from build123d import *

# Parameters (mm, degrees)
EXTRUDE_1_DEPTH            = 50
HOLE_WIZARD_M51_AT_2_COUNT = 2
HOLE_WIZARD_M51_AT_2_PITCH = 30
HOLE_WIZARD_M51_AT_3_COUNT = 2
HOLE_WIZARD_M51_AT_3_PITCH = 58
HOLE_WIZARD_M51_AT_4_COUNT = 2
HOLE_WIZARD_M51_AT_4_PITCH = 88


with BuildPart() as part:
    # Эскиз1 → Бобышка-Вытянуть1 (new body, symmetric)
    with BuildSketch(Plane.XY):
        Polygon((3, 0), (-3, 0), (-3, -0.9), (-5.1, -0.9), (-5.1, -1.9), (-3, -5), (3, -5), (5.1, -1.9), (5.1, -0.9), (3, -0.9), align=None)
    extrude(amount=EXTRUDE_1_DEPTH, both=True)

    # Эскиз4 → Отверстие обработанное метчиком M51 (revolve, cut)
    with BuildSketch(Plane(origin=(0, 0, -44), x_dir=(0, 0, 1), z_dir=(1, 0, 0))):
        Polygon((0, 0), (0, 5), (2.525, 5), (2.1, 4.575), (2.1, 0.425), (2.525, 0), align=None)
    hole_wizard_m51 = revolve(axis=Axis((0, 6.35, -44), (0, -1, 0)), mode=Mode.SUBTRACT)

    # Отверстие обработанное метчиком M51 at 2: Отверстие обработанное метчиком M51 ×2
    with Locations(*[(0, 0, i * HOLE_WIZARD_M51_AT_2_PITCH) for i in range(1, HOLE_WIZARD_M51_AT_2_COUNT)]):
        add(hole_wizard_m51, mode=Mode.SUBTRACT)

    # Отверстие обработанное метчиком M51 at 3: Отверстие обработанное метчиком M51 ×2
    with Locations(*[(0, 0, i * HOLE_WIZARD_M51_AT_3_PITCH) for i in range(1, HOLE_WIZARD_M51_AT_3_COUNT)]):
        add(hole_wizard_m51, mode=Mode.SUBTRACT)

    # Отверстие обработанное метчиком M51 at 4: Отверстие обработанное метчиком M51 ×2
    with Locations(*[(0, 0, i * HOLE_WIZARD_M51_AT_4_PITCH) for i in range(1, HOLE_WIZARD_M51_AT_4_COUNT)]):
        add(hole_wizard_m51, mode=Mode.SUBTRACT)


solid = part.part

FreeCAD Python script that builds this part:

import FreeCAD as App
import Part
import Sketcher

V = App.Vector

doc = App.newDocument("Part")
body = doc.addObject("PartDesign::Body", "Body")

sketch1 = body.newObject("Sketcher::SketchObject", "Sketch")
sketch1.AttachmentSupport = (doc.getObject("XY_Plane"), [""])
sketch1.MapMode = "FlatFace"
sketch1.addGeometry([
    Part.LineSegment(V(3, 0, 0), V(-3, 0, 0)),
    Part.LineSegment(V(-3, 0, 0), V(-3, -0.9, 0)),
    Part.LineSegment(V(-3, -0.9, 0), V(-5.1, -0.9, 0)),
    Part.LineSegment(V(-5.1, -0.9, 0), V(-5.1, -1.9, 0)),
    Part.LineSegment(V(-5.1, -1.9, 0), V(-3, -5, 0)),
    Part.LineSegment(V(-3, -5, 0), V(3, -5, 0)),
    Part.LineSegment(V(3, -5, 0), V(5.1, -1.9, 0)),
    Part.LineSegment(V(5.1, -1.9, 0), V(5.1, -0.9, 0)),
    Part.LineSegment(V(5.1, -0.9, 0), V(3, -0.9, 0)),
    Part.LineSegment(V(3, -0.9, 0), V(3, 0, 0)),
], False)
sketch1.addConstraint([
    Sketcher.Constraint("Coincident", 0, 2, 1, 1),
    Sketcher.Constraint("Coincident", 1, 2, 2, 1),
    Sketcher.Constraint("Coincident", 2, 2, 3, 1),
    Sketcher.Constraint("Coincident", 3, 2, 4, 1),
    Sketcher.Constraint("Coincident", 4, 2, 5, 1),
    Sketcher.Constraint("Coincident", 5, 2, 6, 1),
    Sketcher.Constraint("Coincident", 6, 2, 7, 1),
    Sketcher.Constraint("Coincident", 7, 2, 8, 1),
    Sketcher.Constraint("Coincident", 8, 2, 9, 1),
    Sketcher.Constraint("Coincident", 9, 2, 0, 1),
    Sketcher.Constraint("Horizontal", 0),
    Sketcher.Constraint("Vertical", 1),
    Sketcher.Constraint("Horizontal", 2),
    Sketcher.Constraint("Vertical", 3),
    Sketcher.Constraint("Horizontal", 5),
    Sketcher.Constraint("Vertical", 7),
    Sketcher.Constraint("Horizontal", 8),
    Sketcher.Constraint("Vertical", 9),
    Sketcher.Constraint("Symmetric", 0, 2, 9, 2, -1, 1),
    Sketcher.Constraint("Symmetric", 3, 2, 6, 2, -2),
    Sketcher.Constraint("Horizontal", 2, 2, 7, 2),
    Sketcher.Constraint("Vertical", 1, 2, 4, 2),
    Sketcher.Constraint("Vertical", 5, 2, 8, 2),
    Sketcher.Constraint("DistanceX", 0, 2, 0, 1, 6.0),
    Sketcher.Constraint("DistanceY", 3, 2, 3, 1, 1.0),
    Sketcher.Constraint("DistanceX", 2, 2, 2, 1, 2.1),
    Sketcher.Constraint("DistanceY", 1, 2, 1, 1, 0.9),
    Sketcher.Constraint("DistanceY", 4, 2, -1, 1, 5.0),
])
pad1 = body.newObject("PartDesign::Pad", "Pad")
pad1.Profile = sketch1
pad1.Length = 100
pad1.Midplane = True

sketch2 = body.newObject("Sketcher::SketchObject", "Sketch001")
sketch2.AttachmentSupport = (doc.getObject("YZ_Plane"), [""])
sketch2.MapMode = "FlatFace"
sketch2.addGeometry([
    Part.LineSegment(V(-5, -44, 0), V(0, -44, 0)),
    Part.LineSegment(V(0, -44, 0), V(0, -41.5, 0)),
    Part.LineSegment(V(0, -41.5, 0), V(-0.4, -41.9, 0)),
    Part.LineSegment(V(-0.4, -41.9, 0), V(-4.6, -41.9, 0)),
    Part.LineSegment(V(-4.6, -41.9, 0), V(-5, -41.5, 0)),
    Part.LineSegment(V(-5, -41.5, 0), V(-5, -44, 0)),
], False)
sketch2.addGeometry(Part.LineSegment(V(0, -44, 0), V(-5, -44, 0)), True)
sketch2.addConstraint([
    Sketcher.Constraint("Coincident", 0, 2, 1, 1),
    Sketcher.Constraint("Coincident", 1, 2, 2, 1),
    Sketcher.Constraint("Coincident", 2, 2, 3, 1),
    Sketcher.Constraint("Coincident", 3, 2, 4, 1),
    Sketcher.Constraint("Coincident", 4, 2, 5, 1),
    Sketcher.Constraint("Coincident", 5, 2, 0, 1),
    Sketcher.Constraint("Horizontal", 0),
    Sketcher.Constraint("Vertical", 1),
    Sketcher.Constraint("Horizontal", 3),
    Sketcher.Constraint("Vertical", 5),
    Sketcher.Constraint("Horizontal", 6),
    Sketcher.Constraint("Coincident", 6, 1, 0, 2),
    Sketcher.Constraint("PointOnObject", 0, 2, -2),
    Sketcher.Constraint("Perpendicular", 2, 4),
    Sketcher.Constraint("Horizontal", 1, 2, 4, 2),
    Sketcher.Constraint("Vertical", 4, 2, 6, 2),
    Sketcher.Constraint("Equal", 2, 4),
    Sketcher.Constraint("DistanceX", 0, 1, 0, 2, 5.0),
    Sketcher.Constraint("DistanceY", 0, 2, -1, 1, 44.0),
    Sketcher.Constraint("DistanceX", 3, 2, 3, 1, 4.15),
    Sketcher.Constraint("DistanceY", 2, 2, -1, 1, 41.9),
])
groove = body.newObject("PartDesign::Groove", "Groove")
groove.Profile = sketch2
groove.ReferenceAxis = (sketch2, ["Axis0"])
groove.Angle = 360
doc.recompute()

linearpattern = body.newObject("PartDesign::LinearPattern", "LinearPattern")
linearpattern.Originals = [groove]
linearpattern.Direction = (doc.getObject("Z_Axis"), [""])
linearpattern.Mode = "offset"
linearpattern.Offset = 30
linearpattern.Occurrences = 2
body.Tip = linearpattern
doc.recompute()

linearpattern2 = body.newObject("PartDesign::LinearPattern", "LinearPattern001")
linearpattern2.Originals = [groove]
linearpattern2.Direction = (doc.getObject("Z_Axis"), [""])
linearpattern2.Mode = "offset"
linearpattern2.Offset = 58
linearpattern2.Occurrences = 2
body.Tip = linearpattern2
doc.recompute()

linearpattern3 = body.newObject("PartDesign::LinearPattern", "LinearPattern002")
linearpattern3.Originals = [groove]
linearpattern3.Direction = (doc.getObject("Z_Axis"), [""])
linearpattern3.Mode = "offset"
linearpattern3.Offset = 88
linearpattern3.Occurrences = 2
body.Tip = linearpattern3

doc.recompute()
